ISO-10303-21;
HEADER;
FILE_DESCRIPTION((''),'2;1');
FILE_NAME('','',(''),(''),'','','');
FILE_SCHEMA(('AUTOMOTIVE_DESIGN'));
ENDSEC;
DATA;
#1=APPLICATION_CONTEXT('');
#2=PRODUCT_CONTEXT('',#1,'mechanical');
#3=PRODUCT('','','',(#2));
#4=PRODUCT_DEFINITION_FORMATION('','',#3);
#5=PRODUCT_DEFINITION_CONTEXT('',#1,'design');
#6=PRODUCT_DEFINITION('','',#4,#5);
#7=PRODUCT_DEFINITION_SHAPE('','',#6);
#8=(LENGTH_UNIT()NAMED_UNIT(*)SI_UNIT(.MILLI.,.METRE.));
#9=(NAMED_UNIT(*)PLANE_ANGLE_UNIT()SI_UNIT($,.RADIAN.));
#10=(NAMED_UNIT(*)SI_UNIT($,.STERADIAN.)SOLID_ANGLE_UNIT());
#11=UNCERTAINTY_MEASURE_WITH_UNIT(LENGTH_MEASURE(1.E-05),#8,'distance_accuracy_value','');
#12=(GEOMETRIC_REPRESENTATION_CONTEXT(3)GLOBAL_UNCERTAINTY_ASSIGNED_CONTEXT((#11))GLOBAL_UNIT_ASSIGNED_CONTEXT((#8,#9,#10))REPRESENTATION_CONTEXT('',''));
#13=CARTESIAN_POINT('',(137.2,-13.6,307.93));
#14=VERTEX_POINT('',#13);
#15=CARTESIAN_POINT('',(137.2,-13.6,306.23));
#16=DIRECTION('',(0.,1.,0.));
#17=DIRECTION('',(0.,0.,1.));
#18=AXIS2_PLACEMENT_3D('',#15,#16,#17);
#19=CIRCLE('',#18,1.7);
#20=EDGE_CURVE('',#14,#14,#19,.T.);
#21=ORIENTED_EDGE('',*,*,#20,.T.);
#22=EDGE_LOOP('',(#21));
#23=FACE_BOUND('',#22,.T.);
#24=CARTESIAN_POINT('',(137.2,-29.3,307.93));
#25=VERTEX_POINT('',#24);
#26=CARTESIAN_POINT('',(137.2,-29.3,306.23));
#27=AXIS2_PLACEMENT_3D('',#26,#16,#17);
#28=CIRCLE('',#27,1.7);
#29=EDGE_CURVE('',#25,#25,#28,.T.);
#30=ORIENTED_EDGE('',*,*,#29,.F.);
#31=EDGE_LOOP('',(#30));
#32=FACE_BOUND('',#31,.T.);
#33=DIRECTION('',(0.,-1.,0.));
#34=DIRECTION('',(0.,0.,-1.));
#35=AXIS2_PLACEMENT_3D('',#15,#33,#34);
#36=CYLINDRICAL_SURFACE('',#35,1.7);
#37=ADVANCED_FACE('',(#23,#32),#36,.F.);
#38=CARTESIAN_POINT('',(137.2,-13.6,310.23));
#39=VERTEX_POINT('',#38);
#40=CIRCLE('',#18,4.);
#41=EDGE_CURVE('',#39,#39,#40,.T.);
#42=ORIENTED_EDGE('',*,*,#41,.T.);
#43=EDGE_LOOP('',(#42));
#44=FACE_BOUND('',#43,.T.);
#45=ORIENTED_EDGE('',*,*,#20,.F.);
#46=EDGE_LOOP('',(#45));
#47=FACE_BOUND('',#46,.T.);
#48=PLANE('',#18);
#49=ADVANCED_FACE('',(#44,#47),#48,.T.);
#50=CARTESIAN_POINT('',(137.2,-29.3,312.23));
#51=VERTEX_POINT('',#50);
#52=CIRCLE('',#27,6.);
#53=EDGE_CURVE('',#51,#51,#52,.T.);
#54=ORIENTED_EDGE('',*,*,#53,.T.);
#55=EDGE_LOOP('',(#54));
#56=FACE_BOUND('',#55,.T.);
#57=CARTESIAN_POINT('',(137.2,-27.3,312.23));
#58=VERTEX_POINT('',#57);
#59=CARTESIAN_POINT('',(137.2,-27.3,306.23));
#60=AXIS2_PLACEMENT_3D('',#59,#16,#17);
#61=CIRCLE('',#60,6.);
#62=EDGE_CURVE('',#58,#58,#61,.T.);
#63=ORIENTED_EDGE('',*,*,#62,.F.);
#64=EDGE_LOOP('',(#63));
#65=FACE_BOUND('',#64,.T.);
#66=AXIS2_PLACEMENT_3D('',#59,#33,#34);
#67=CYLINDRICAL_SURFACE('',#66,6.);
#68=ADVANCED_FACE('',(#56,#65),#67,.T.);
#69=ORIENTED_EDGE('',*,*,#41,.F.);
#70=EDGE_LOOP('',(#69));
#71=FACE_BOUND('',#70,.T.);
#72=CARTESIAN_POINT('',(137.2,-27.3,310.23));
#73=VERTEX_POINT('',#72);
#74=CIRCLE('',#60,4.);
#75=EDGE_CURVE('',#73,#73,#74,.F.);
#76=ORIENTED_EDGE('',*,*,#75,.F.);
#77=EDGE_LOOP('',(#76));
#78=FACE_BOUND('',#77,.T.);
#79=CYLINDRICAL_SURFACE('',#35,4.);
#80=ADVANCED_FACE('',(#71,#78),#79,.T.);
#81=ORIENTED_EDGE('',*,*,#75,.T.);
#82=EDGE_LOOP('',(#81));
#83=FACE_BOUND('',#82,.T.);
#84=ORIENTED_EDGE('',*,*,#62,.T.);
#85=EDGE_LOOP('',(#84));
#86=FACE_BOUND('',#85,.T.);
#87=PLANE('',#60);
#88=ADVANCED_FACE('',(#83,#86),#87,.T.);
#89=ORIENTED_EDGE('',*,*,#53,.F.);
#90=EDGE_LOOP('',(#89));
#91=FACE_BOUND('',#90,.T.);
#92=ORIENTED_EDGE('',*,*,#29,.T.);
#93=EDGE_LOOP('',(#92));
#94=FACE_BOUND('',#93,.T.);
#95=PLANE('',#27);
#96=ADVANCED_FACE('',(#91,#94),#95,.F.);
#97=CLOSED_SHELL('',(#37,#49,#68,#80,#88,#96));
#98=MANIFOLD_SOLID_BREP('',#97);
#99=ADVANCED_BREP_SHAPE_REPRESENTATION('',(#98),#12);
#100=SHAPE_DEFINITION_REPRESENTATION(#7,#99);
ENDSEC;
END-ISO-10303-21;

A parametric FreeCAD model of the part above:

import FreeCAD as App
import Part
import Sketcher
from FreeCAD import Vector
Q = App.Units.Quantity

doc = App.newDocument("Part")
params = doc.addObject("Spreadsheet::Sheet", "Params")
for row, (alias, value) in enumerate([
    ("sketch1_diameter", "12 mm"),
    ("pad1_length", "2 mm"),
    ("sketch2_diameter", "8 mm"),
    ("pad2_length", "15.7 mm"),
    ("sketch3_diameter", "3.4 mm"),
], start=1):
    params.set(f"A{row}", alias)
    params.set(f"B{row}", "=" + value)
    params.setAlias(f"B{row}", alias)

body = doc.addObject("PartDesign::Body", "Body")

# Sketch on XZ plane
sketch1 = body.newObject("Sketcher::SketchObject", "Sketch")
sketch1.AttachmentSupport = (doc.getObject("XZ_Plane"), [""])
sketch1.MapMode = "FlatFace"
sketch1.AttachmentOffset = App.Placement(Vector(0, 0, 29.3), App.Rotation())
sketch1.addGeometry(Part.Circle(Vector(137, 306, 0), Vector(0, 0, 1), 6), False)
sketch1.addConstraint([
    Sketcher.Constraint("Diameter", 0, Q("12 mm")),
    Sketcher.Constraint("DistanceX", -1, 1, 0, 3, Q("137.2 mm")),
    Sketcher.Constraint("DistanceY", -1, 1, 0, 3, Q("306.23 mm")),
])
sketch1.setExpression("Constraints[0]", "Params.sketch1_diameter")
pad1 = body.newObject("PartDesign::Pad", "Pad")
pad1.Profile = sketch1
pad1.setExpression("Length", "Params.pad1_length")
pad1.Reversed = True

# Sketch on XZ plane
sketch2 = body.newObject("Sketcher::SketchObject", "Sketch001")
sketch2.AttachmentSupport = (doc.getObject("XZ_Plane"), [""])
sketch2.MapMode = "FlatFace"
sketch2.AttachmentOffset = App.Placement(Vector(0, 0, 29.3), App.Rotation())
sketch2.addGeometry(Part.Circle(Vector(137.2, 306.2, 0), Vector(0, 0, 1), 4), False)
sketch2.addConstraint([
    Sketcher.Constraint("Diameter", 0, Q("8 mm")),
    Sketcher.Constraint("DistanceX", -1, 1, 0, 3, Q("137.2 mm")),
    Sketcher.Constraint("DistanceY", -1, 1, 0, 3, Q("306.23 mm")),
])
sketch2.setExpression("Constraints[0]", "Params.sketch2_diameter")
pad2 = body.newObject("PartDesign::Pad", "Pad001")
pad2.Profile = sketch2
pad2.setExpression("Length", "Params.pad2_length")
pad2.Reversed = True

# Sketch on XZ plane
sketch3 = body.newObject("Sketcher::SketchObject", "Sketch002")
sketch3.AttachmentSupport = (doc.getObject("XZ_Plane"), [""])
sketch3.MapMode = "FlatFace"
sketch3.AttachmentOffset = App.Placement(Vector(0, 0, 29.3), App.Rotation())
sketch3.addGeometry(Part.Circle(Vector(137.2, 306.2, 0), Vector(0, 0, 1), 1.7), False)
sketch3.addConstraint([
    Sketcher.Constraint("Diameter", 0, Q("3.4 mm")),
    Sketcher.Constraint("DistanceX", -1, 1, 0, 3, Q("137.2 mm")),
    Sketcher.Constraint("DistanceY", -1, 1, 0, 3, Q("306.23 mm")),
])
sketch3.setExpression("Constraints[0]", "Params.sketch3_diameter")
pocket1 = body.newObject("PartDesign::Pocket", "Pocket")
pocket1.Profile = sketch3
pocket1.Type = "ThroughAll"

doc.recompute()
